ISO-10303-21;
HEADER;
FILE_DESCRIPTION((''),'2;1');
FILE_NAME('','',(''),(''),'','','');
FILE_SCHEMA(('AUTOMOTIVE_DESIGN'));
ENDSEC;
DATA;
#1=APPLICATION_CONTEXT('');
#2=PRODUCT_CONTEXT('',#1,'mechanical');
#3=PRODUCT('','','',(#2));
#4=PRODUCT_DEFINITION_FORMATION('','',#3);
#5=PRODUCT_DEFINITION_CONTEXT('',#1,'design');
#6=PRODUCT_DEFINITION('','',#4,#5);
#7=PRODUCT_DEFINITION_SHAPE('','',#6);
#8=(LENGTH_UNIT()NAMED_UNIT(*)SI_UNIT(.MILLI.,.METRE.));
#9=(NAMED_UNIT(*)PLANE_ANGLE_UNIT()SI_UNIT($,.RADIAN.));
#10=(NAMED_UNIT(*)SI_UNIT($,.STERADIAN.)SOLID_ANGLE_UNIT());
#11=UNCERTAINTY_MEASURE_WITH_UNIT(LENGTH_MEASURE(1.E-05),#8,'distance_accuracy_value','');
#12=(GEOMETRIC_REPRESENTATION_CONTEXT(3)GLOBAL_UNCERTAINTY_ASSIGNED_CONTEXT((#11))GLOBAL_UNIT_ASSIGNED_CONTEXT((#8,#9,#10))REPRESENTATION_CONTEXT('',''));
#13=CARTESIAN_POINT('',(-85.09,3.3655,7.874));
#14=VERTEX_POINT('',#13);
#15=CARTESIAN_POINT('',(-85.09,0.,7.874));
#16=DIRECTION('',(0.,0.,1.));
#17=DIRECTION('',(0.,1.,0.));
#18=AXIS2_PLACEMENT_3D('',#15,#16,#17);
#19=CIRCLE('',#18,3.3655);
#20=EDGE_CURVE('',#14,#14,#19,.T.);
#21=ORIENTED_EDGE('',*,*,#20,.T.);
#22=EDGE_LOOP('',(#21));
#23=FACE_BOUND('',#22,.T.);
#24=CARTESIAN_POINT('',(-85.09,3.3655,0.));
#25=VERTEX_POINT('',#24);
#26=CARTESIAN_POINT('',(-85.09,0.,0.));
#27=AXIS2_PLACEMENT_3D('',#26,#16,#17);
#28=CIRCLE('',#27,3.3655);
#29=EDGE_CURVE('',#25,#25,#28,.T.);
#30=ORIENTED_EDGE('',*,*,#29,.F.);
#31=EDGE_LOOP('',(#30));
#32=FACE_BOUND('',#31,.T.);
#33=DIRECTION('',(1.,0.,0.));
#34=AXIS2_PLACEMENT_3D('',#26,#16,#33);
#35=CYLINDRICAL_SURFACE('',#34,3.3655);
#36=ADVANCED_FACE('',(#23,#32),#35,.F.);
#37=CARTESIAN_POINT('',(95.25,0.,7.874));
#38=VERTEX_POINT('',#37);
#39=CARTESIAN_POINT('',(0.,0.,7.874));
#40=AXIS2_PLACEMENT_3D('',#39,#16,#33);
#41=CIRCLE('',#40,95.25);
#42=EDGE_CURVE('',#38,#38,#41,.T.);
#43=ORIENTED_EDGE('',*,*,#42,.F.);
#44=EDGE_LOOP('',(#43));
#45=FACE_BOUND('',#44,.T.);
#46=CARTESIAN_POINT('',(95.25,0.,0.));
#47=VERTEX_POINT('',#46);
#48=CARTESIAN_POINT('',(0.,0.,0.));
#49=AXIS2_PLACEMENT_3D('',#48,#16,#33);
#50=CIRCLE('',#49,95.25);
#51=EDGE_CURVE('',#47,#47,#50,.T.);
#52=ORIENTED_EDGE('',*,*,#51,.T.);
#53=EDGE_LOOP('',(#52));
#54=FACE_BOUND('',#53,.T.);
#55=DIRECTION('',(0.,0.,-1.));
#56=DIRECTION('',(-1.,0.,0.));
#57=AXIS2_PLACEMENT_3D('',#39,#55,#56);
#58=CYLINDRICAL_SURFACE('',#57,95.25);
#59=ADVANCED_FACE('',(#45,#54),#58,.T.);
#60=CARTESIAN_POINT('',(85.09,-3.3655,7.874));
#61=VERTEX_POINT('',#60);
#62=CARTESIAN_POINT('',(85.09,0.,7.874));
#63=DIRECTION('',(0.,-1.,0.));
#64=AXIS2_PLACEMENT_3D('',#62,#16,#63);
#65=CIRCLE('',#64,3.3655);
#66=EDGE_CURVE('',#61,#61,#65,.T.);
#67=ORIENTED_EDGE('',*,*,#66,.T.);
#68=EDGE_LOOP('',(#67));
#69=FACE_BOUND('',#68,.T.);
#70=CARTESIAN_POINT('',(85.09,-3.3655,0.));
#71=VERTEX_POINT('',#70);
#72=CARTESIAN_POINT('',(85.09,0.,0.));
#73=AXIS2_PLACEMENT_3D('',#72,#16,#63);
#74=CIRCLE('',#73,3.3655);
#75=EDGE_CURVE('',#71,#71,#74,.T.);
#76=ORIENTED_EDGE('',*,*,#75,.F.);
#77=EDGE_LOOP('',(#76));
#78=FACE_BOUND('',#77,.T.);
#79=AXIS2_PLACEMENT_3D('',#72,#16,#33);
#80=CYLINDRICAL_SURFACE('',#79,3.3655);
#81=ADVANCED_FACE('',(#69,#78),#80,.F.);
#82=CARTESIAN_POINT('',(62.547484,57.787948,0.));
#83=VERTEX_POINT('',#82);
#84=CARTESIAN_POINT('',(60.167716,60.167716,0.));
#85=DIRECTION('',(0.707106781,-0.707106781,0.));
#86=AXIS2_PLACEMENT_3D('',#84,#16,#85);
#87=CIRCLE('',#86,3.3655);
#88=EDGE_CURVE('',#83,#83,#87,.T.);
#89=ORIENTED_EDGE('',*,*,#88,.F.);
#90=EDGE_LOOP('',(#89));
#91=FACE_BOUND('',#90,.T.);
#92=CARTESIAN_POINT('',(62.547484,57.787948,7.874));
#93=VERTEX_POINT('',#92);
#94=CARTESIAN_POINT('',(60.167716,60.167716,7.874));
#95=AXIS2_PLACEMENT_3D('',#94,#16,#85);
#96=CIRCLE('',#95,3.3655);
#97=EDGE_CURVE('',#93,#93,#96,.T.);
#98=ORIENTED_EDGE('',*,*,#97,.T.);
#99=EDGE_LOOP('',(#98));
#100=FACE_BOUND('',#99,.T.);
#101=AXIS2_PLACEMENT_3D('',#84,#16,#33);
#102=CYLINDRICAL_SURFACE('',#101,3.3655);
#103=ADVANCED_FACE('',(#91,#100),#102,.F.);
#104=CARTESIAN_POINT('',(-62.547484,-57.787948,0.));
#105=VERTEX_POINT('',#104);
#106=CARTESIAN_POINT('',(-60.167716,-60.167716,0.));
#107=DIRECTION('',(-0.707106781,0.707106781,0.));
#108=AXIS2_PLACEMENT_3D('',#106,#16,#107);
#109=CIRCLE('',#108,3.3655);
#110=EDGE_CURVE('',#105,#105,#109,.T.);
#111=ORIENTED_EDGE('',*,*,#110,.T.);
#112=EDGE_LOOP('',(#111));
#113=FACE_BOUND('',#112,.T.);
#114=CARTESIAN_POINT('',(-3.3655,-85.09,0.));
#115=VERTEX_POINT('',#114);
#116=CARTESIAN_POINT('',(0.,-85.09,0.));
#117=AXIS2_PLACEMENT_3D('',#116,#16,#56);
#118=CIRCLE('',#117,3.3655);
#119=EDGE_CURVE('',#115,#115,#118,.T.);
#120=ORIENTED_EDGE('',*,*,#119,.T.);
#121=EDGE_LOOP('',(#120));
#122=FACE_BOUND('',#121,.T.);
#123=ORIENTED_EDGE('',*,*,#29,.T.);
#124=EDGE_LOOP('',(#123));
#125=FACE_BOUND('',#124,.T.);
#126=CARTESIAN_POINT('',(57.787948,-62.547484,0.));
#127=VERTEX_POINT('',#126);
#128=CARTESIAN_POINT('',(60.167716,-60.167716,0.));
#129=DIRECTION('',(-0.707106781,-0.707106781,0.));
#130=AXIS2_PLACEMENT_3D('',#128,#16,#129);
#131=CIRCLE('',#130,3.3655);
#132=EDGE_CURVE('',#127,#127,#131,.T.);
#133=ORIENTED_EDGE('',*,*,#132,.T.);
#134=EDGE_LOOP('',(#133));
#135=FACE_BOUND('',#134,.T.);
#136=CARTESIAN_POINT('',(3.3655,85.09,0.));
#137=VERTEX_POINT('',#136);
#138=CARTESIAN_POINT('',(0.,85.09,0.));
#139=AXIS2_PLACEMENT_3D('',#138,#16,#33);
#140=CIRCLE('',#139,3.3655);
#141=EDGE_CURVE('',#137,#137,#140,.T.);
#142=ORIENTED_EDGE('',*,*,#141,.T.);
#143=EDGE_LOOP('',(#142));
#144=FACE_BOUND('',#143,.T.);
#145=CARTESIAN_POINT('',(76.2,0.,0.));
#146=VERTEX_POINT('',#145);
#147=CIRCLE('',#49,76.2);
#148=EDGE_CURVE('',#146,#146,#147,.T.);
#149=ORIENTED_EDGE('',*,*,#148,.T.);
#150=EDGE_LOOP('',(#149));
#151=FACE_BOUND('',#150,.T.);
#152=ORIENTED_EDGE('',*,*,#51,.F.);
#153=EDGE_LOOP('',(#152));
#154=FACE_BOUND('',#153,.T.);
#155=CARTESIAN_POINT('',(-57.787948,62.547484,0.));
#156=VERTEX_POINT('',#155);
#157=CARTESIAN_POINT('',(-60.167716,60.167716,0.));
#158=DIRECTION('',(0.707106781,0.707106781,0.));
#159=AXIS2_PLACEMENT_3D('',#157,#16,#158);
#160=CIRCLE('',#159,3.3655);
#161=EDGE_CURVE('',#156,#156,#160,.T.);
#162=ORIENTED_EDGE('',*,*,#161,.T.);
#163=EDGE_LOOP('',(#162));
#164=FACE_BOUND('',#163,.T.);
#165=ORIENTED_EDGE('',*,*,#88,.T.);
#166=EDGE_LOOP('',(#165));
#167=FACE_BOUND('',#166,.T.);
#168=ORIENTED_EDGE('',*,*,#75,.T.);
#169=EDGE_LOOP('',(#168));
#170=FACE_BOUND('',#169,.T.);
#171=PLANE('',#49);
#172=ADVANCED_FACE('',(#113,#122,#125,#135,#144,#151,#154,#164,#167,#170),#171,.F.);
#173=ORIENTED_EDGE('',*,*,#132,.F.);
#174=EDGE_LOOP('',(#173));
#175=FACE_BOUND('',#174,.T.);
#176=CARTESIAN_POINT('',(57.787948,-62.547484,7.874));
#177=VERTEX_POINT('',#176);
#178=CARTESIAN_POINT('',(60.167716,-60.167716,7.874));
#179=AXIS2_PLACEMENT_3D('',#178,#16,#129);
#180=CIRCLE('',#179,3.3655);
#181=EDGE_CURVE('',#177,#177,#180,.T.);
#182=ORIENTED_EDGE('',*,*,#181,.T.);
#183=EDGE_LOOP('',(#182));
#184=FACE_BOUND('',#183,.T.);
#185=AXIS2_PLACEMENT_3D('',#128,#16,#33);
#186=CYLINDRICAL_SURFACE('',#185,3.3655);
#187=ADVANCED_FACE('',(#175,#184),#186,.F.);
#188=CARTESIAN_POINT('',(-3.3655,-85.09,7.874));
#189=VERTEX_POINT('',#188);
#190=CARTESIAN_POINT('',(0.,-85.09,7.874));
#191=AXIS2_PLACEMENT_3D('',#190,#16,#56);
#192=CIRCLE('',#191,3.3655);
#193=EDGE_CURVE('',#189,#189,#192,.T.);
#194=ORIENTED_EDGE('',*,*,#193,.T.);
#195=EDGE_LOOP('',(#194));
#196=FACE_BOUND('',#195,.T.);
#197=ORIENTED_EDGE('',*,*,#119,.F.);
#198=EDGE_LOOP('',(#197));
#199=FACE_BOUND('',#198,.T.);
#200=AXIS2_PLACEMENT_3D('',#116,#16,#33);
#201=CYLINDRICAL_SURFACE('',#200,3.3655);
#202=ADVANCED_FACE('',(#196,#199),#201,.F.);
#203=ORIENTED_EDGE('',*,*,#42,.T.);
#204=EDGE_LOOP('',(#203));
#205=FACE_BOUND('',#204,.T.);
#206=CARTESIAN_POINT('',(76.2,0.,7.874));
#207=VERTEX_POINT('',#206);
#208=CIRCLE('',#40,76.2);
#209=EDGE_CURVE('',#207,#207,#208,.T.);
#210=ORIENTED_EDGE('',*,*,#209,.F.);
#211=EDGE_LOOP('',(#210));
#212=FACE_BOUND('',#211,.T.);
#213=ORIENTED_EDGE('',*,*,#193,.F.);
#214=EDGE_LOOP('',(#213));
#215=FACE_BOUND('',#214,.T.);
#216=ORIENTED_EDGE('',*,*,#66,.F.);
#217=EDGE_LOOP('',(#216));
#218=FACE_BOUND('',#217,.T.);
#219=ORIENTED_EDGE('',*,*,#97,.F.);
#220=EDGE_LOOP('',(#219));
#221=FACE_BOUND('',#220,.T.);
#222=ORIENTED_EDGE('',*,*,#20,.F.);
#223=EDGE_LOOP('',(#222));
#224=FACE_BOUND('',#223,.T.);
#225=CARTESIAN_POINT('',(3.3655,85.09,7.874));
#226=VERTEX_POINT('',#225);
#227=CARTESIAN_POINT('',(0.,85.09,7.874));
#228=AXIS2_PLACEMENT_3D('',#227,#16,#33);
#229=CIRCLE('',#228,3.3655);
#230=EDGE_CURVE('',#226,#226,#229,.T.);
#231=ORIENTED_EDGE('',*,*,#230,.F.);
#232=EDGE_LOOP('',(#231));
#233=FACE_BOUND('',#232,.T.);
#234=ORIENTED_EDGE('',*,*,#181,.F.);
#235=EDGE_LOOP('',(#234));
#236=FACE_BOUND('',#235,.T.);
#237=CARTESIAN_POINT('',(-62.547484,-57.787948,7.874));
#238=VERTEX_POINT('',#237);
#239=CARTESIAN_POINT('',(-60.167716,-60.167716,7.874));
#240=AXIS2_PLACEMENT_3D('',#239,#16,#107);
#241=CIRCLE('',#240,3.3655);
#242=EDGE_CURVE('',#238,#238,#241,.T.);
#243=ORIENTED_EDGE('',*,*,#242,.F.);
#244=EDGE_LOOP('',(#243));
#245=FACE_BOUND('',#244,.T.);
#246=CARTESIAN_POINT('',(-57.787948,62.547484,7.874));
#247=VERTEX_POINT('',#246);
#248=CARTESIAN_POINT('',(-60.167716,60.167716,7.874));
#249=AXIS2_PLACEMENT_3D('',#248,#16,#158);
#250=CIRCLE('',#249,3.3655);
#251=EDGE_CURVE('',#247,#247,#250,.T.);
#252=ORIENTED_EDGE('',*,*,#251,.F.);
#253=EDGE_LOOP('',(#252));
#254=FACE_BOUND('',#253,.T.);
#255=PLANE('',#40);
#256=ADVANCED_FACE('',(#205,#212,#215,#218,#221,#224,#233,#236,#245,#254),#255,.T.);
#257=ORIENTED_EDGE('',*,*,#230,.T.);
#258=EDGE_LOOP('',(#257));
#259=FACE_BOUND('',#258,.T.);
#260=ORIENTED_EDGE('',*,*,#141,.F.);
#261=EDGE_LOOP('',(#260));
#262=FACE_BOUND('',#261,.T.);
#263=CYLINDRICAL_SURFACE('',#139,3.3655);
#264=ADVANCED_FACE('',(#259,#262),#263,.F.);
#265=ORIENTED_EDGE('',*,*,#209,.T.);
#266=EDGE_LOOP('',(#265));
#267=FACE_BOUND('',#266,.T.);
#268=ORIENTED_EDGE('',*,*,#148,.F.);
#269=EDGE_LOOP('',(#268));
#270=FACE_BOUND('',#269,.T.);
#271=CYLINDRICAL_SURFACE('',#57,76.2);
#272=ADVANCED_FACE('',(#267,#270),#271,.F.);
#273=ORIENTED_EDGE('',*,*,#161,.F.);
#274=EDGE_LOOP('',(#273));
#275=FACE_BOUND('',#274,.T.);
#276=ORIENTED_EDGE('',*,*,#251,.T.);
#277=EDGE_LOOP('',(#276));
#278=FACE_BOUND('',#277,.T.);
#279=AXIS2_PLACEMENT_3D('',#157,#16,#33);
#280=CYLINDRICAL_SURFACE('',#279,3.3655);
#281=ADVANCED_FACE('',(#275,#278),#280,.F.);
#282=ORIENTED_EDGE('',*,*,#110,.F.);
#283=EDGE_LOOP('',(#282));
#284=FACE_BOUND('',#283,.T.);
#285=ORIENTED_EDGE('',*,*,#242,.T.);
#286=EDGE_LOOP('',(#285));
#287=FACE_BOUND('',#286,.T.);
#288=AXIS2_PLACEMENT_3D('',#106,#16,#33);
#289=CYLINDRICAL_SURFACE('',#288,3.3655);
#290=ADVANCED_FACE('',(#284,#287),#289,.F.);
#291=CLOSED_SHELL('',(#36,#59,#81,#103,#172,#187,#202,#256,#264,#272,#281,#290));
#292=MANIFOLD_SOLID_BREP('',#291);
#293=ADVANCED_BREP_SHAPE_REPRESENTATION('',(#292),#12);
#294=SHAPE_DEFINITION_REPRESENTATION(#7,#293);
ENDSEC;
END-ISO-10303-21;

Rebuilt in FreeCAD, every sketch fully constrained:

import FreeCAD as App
import Part
import Sketcher
Q = App.Units.Quantity

doc = App.newDocument("Part")
body = doc.addObject("PartDesign::Body", "Body")

# Sketch on XY plane
sketch1 = doc.addObject("Sketcher::SketchObject", "Sketch")
body.addObject(sketch1)
sketch1.AttachmentSupport = (doc.XY_Plane, [""])
sketch1.MapMode = "FlatFace"
sketch1.addGeometry([
    Part.Circle(App.Vector(0, 0, 0), App.Vector(0, 0, 1), 95),
    Part.Circle(App.Vector(0, 0, 0), App.Vector(0, 0, 1), 76),
], False)
sketch1.addConstraint([
    Sketcher.Constraint("Coincident", 0, 3, -1, 1),
    Sketcher.Constraint("Coincident", 1, 3, -1, 1),
    Sketcher.Constraint("Diameter", 1, Q("6 in")),
    Sketcher.Constraint("Diameter", 0, Q("7.5 in")),
])
pad1 = doc.addObject("PartDesign::Pad", "Pad")
body.addObject(pad1)
pad1.Profile = sketch1
pad1.Length = Q("0.31 in")

# Sketch on XY plane
sketch2 = doc.addObject("Sketcher::SketchObject", "Sketch001")
body.addObject(sketch2)
sketch2.AttachmentSupport = (doc.XY_Plane, [""])
sketch2.MapMode = "FlatFace"
sketch2.AttachmentOffset = App.Placement(App.Vector(0, 0, 0.31 * 25.4), App.Rotation())
sketch2.addGeometry(Part.Circle(App.Vector(0, 85.1, 0), App.Vector(0, 0, 1), 3.4), False)
sketch2.addConstraint([
    Sketcher.Constraint("PointOnObject", 0, 3, -2),
    Sketcher.Constraint("Diameter", 0, Q("0.265 in")),
    Sketcher.Constraint("DistanceY", -1, 1, 0, 3, Q("3.35 in")),
])
pocket1 = doc.addObject("PartDesign::Pocket", "Pocket")
body.addObject(pocket1)
pocket1.Profile = sketch2
pocket1.Type = "ThroughAll"
doc.recompute()

polarpattern = doc.addObject("PartDesign::PolarPattern", "PolarPattern")
body.addObject(polarpattern)
polarpattern.Originals = [pocket1]
polarpattern.Axis = (doc.Z_Axis, [""])
polarpattern.Angle = 360
polarpattern.Occurrences = 8
body.Tip = polarpattern

doc.recompute()
